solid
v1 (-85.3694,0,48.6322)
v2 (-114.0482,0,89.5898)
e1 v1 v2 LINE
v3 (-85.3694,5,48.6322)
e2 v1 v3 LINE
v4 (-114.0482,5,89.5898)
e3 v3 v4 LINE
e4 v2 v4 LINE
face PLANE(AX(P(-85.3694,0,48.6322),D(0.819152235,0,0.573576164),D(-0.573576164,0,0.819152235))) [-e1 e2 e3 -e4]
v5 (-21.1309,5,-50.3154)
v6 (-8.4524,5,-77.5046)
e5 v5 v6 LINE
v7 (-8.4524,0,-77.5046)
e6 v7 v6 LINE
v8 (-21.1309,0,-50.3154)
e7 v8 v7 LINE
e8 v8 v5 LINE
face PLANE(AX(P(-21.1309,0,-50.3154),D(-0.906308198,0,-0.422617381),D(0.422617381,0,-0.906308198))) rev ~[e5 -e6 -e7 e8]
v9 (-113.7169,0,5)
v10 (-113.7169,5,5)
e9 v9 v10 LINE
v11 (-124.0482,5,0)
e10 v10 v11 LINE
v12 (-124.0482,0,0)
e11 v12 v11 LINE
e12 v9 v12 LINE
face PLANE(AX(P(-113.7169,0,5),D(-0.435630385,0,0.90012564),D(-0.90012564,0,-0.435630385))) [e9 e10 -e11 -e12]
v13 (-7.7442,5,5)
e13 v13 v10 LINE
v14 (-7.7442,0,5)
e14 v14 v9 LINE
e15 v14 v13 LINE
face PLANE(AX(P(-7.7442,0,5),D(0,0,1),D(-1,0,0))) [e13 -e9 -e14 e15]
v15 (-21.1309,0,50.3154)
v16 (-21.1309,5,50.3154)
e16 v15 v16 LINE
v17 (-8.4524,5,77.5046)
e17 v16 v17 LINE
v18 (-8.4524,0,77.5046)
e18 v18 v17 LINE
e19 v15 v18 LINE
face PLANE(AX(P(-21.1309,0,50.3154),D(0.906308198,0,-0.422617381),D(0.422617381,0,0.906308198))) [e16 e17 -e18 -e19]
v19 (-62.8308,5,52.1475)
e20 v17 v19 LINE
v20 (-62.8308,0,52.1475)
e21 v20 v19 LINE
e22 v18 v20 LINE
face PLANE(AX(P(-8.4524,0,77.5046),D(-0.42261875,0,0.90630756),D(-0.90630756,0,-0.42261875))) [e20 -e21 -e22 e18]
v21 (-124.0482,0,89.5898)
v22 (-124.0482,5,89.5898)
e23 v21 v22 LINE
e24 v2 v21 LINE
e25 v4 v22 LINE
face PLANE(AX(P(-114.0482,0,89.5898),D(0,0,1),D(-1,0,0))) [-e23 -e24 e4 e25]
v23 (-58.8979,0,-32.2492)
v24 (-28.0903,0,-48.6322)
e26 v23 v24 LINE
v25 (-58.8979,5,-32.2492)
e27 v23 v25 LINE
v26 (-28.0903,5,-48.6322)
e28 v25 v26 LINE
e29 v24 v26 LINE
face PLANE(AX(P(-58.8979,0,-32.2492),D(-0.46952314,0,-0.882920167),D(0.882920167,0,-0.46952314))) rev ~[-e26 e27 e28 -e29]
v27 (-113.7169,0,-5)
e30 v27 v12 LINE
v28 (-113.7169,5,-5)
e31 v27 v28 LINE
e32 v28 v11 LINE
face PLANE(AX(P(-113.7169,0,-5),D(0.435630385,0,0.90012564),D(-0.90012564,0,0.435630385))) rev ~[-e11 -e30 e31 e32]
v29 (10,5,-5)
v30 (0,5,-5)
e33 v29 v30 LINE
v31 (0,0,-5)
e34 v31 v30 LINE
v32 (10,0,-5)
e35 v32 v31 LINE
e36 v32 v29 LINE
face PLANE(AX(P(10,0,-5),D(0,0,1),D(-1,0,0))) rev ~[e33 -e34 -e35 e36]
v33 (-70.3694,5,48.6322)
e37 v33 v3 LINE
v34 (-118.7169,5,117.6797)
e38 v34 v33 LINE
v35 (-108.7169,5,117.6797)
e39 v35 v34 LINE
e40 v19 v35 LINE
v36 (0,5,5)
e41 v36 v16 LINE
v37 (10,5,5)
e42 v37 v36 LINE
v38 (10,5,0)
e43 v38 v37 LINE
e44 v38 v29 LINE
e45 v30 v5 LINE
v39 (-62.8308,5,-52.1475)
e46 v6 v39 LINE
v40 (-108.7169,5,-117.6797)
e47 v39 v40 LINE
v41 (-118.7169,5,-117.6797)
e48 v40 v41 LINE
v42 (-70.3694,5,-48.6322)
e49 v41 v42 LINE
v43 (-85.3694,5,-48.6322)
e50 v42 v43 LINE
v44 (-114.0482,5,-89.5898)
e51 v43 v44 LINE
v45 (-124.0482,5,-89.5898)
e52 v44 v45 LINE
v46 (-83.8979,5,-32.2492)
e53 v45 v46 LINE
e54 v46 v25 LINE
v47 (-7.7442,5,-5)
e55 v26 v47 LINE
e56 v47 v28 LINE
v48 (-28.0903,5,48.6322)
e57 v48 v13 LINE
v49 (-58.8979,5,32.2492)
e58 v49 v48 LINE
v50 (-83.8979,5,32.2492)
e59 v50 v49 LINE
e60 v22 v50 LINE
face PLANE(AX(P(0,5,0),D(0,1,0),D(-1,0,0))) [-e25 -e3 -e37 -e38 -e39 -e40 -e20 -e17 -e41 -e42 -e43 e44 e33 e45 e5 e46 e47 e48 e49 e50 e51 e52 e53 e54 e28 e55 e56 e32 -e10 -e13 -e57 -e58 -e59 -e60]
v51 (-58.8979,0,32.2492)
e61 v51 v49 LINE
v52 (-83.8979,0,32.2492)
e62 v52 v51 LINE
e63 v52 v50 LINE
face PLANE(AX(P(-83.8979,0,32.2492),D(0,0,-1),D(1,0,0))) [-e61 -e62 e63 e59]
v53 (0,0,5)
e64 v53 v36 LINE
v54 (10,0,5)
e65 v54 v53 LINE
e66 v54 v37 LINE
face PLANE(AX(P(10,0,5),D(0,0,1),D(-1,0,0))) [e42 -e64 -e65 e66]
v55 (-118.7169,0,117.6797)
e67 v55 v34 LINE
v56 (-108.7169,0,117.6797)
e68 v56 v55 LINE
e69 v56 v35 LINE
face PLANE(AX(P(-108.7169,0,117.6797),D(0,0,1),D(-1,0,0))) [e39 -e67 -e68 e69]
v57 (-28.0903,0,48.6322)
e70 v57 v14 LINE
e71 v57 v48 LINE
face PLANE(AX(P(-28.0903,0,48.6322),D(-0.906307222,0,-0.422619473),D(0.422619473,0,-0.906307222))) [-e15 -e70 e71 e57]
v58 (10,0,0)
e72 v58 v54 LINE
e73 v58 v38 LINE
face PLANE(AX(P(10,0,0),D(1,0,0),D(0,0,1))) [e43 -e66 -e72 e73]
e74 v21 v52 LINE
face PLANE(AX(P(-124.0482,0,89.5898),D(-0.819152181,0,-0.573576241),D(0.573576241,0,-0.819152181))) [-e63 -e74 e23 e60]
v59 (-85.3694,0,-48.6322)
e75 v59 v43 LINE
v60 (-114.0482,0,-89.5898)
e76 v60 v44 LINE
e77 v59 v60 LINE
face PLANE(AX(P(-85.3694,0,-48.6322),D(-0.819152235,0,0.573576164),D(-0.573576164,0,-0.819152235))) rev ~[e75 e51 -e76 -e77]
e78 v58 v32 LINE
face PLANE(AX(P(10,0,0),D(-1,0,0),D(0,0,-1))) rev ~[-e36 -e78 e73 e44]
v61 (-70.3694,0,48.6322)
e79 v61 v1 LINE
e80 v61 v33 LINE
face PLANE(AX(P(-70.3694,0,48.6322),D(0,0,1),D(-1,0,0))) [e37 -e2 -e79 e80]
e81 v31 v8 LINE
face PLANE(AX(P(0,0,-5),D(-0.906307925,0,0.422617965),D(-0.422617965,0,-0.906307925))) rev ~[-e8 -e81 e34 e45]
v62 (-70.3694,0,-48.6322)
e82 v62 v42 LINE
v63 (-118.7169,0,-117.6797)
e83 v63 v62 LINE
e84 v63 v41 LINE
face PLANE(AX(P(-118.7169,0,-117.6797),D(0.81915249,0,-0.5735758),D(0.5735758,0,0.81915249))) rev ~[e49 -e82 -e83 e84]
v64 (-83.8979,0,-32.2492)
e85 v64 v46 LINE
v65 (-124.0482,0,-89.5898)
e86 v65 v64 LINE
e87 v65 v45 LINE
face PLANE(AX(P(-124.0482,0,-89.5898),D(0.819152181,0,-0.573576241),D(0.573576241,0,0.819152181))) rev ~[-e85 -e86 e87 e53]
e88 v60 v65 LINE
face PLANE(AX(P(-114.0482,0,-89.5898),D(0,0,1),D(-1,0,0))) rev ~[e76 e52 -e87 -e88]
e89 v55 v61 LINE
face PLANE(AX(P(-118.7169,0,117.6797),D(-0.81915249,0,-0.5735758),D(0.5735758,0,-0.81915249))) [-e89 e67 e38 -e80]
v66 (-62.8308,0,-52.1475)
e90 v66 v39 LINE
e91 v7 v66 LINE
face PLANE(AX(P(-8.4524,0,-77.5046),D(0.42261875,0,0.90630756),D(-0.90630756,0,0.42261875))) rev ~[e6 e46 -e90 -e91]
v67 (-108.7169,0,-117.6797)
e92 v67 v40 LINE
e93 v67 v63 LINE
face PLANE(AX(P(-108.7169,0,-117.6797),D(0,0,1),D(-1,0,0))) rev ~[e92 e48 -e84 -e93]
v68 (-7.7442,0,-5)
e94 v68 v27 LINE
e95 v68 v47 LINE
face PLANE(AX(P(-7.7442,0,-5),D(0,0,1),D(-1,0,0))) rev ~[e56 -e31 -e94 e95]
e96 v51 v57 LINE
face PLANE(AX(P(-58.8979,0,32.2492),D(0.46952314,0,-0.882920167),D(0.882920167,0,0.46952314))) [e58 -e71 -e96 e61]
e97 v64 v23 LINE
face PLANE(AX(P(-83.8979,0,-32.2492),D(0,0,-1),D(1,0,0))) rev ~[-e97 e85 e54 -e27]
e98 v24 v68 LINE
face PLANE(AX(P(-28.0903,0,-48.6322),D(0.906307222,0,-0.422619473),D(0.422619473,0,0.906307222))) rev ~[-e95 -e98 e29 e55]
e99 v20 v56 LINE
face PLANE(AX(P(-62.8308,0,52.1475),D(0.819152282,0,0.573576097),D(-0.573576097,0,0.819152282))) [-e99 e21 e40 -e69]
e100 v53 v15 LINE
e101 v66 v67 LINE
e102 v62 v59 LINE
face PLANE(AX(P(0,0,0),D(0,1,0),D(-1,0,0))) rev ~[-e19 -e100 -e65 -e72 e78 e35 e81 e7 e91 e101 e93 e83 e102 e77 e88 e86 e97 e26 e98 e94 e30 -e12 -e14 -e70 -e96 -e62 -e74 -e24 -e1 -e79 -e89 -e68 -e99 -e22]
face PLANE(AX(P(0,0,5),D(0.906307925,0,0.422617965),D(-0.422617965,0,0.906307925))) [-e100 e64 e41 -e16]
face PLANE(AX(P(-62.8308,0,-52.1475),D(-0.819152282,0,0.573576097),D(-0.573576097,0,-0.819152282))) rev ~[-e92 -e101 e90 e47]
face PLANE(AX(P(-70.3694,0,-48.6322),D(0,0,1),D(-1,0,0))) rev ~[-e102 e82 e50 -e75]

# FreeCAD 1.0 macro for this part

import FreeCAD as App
import Part
import Sketcher
Q = App.Units.Quantity


def add_polygon(sketch, points):
    """Adds a closed chain of lines whose ends are joined by coincident constraints."""
    first, n = sketch.GeometryCount, len(points)
    for a, b in zip(points, points[1:] + points[:1]):
        sketch.addGeometry(Part.LineSegment(App.Vector(*a, 0), App.Vector(*b, 0)), False)
    for i in range(n):
        sketch.addConstraint(Sketcher.Constraint("Coincident", first + i, 2, first + (i + 1) % n, 1))

doc = App.newDocument("Part")
body = doc.addObject("PartDesign::Body", "Body")

# Sketch on XZ plane
sketch1 = body.newObject("Sketcher::SketchObject", "Sketch")
sketch1.AttachmentSupport = (doc.getObject("XZ_Plane"), [""])
sketch1.MapMode = "FlatFace"
add_polygon(sketch1, [(10, 5), (10, -5), (0, -5), (-21, -50), (-8, -78), (-63, -52), (-109, -118), (-119, -118), (-70, -49), (-85, -49), (-114, -90), (-124, -90), (-84, -32), (-59, -32), (-28, -49), (-8, -5), (-114, -5), (-124, 0), (-114, 5), (-8, 5), (-28, 49), (-59, 32), (-84, 32), (-124, 90), (-114, 90), (-85, 49), (-70, 49), (-119, 118), (-109, 118), (-63, 52), (-8, 78), (-21, 50), (0, 5)])  # lines 0-32
sketch1.addConstraint(Sketcher.Constraint("Vertical", 0))
sketch1.addConstraint(Sketcher.Constraint("Horizontal", 1))
sketch1.addConstraint(Sketcher.Constraint("Horizontal", 6))
sketch1.addConstraint(Sketcher.Constraint("Horizontal", 8))
sketch1.addConstraint(Sketcher.Constraint("Horizontal", 10))
sketch1.addConstraint(Sketcher.Constraint("Horizontal", 12))
sketch1.addConstraint(Sketcher.Constraint("Horizontal", 15))
sketch1.addConstraint(Sketcher.Constraint("Horizontal", 18))
sketch1.addConstraint(Sketcher.Constraint("Horizontal", 21))
sketch1.addConstraint(Sketcher.Constraint("Horizontal", 23))
sketch1.addConstraint(Sketcher.Constraint("Horizontal", 25))
sketch1.addConstraint(Sketcher.Constraint("Horizontal", 27))
sketch1.addConstraint(Sketcher.Constraint("Horizontal", 32))
sketch1.addConstraint(Sketcher.Constraint("Symmetric", 1, 2, 31, 2, -1, 1))
sketch1.addConstraint(Sketcher.Constraint("Symmetric", 15, 2, 17, 2, -1))
sketch1.addConstraint(Sketcher.Constraint("Symmetric", 13, 2, 19, 2, -1))
sketch1.addConstraint(Sketcher.Constraint("Symmetric", 12, 2, 20, 2, -1))
sketch1.addConstraint(Sketcher.Constraint("Symmetric", 10, 2, 22, 2, -1))
sketch1.addConstraint(Sketcher.Constraint("Symmetric", 8, 2, 24, 2, -1))
sketch1.addConstraint(Sketcher.Constraint("Symmetric", 6, 2, 26, 2, -1))
sketch1.addConstraint(Sketcher.Constraint("Symmetric", 4, 2, 28, 2, -1))
sketch1.addConstraint(Sketcher.Constraint("Symmetric", 3, 2, 29, 2, -1))
sketch1.addConstraint(Sketcher.Constraint("Symmetric", 2, 2, 30, 2, -1))
sketch1.addConstraint(Sketcher.Constraint("PointOnObject", 1, 2, -2))
sketch1.addConstraint(Sketcher.Constraint("PointOnObject", 16, 2, -1))
sketch1.addConstraint(Sketcher.Constraint("Perpendicular", 2, 4))
sketch1.addConstraint(Sketcher.Constraint("Parallel", 5, 7))
sketch1.addConstraint(Sketcher.Constraint("Parallel", 7, 9))
sketch1.addConstraint(Sketcher.Constraint("Parallel", 9, 11))
sketch1.addConstraint(Sketcher.Constraint("Perpendicular", 4, 14))
sketch1.addConstraint(Sketcher.Constraint("Parallel", 3, 19))
sketch1.addConstraint(Sketcher.Constraint("Parallel", 22, 24))
sketch1.addConstraint(Sketcher.Constraint("Parallel", 24, 26))
sketch1.addConstraint(Sketcher.Constraint("Parallel", 26, 28))
sketch1.addConstraint(Sketcher.Constraint("Perpendicular", 19, 29))
sketch1.addConstraint(Sketcher.Constraint("Horizontal", 8, 2, 13, 2))
sketch1.addConstraint(Sketcher.Constraint("Horizontal", 1, 2, 14, 2))
sketch1.addConstraint(Sketcher.Constraint("Vertical", 10, 2, 16, 2))
sketch1.addConstraint(Sketcher.Constraint("Vertical", 11, 2, 21, 2))
sketch1.addConstraint(Sketcher.Constraint("Equal", 1, 6))
sketch1.addConstraint(Sketcher.Constraint("Equal", 6, 10))
sketch1.addConstraint(Sketcher.Constraint("Equal", 32, 0))
sketch1.addConstraint(Sketcher.Constraint("Equal", 2, 9))
sketch1.addConstraint(Sketcher.Constraint("DistanceX", 1, 2, 1, 1, 10.0))
sketch1.addConstraint(Sketcher.Constraint("DistanceX", 8, 2, 8, 1, 15.0))
sketch1.addConstraint(Sketcher.Constraint("Angle", 5, Q("-125 deg")))
sketch1.addConstraint(Sketcher.Constraint("Distance", 2, 50.0))
sketch1.addConstraint(Sketcher.Constraint("Distance", 3, 30.0))
sketch1.addConstraint(Sketcher.Constraint("Distance", 4, 60.0))
sketch1.addConstraint(Sketcher.Constraint("Distance", 5, 80.0))
sketch1.addConstraint(Sketcher.Constraint("Distance", 11, 70.0))
sketch1.addConstraint(Sketcher.Constraint("DistanceX", 12, 1, 12, 2, 25.0))
sketch1.addConstraint(Sketcher.Constraint("Angle", 2, Q("-115 deg")))
sketch1.addConstraint(Sketcher.Constraint("DistanceY", 6, 2, 9, 2, 28.09))
sketch1.addConstraint(Sketcher.Constraint("DistanceX", 15, 2, 15, 1, 105.9727))
sketch1.addConstraint(Sketcher.Constraint("DistanceX", 15, 2, -1, 1, 113.717))
pad1 = body.newObject("PartDesign::Pad", "Pad")
pad1.Profile = sketch1
pad1.Length = 5
pad1.Reversed = True

doc.recompute()
